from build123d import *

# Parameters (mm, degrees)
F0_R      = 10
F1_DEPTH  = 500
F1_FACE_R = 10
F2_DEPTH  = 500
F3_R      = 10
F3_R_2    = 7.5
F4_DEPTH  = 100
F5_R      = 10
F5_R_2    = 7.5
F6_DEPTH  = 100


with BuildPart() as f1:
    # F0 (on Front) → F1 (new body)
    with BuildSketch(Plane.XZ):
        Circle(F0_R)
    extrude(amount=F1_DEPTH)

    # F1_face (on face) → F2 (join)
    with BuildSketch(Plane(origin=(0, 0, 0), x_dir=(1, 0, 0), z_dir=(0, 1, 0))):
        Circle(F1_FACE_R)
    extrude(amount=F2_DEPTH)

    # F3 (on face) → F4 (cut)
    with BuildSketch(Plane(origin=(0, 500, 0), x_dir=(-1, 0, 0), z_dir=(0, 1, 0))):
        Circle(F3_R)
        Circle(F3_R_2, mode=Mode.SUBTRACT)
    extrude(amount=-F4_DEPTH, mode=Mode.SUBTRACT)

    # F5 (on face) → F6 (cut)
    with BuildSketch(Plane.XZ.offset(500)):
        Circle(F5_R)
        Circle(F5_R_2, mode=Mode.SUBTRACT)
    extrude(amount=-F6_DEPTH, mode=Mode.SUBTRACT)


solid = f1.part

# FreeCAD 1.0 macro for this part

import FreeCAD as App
import Part
import Sketcher
from FreeCAD import Vector
Q = App.Units.Quantity

doc = App.newDocument("Part")
params = doc.addObject("Spreadsheet::Sheet", "Params")
for row, (alias, value) in enumerate([
    ("sketch1_diameter", "20 mm"),
    ("pad1_length", "500 mm"),
    ("sketch2_diameter", "20 mm"),
    ("pad2_length", "500 mm"),
    ("sketch3_diameter", "20 mm"),
    ("sketch3_diameter2", "15 mm"),
    ("pocket1_length", "100 mm"),
    ("sketch4_diameter", "20 mm"),
    ("sketch4_diameter2", "15 mm"),
    ("pocket2_length", "100 mm"),
], start=1):
    params.set(f"A{row}", alias)
    params.set(f"B{row}", "=" + value)
    params.setAlias(f"B{row}", alias)

body = doc.addObject("PartDesign::Body", "Body")

# Sketch on XZ plane
sketch1 = body.newObject("Sketcher::SketchObject", "Sketch")
sketch1.AttachmentSupport = (doc.getObject("XZ_Plane"), [""])
sketch1.MapMode = "FlatFace"
sketch1.addGeometry(Part.Circle(Vector(0, 0, 0), Vector(0, 0, 1), 10), False)
sketch1.addConstraint([
    Sketcher.Constraint("Coincident", 0, 3, -1, 1),
    Sketcher.Constraint("Diameter", 0, Q("20 mm")),
])
sketch1.setExpression("Constraints[1]", "Params.sketch1_diameter")
pad1 = body.newObject("PartDesign::Pad", "Pad")
pad1.Profile = sketch1
pad1.setExpression("Length", "Params.pad1_length")

# Sketch on XZ plane
sketch2 = body.newObject("Sketcher::SketchObject", "Sketch001")
sketch2.AttachmentSupport = (doc.getObject("XZ_Plane"), [""])
sketch2.MapMode = "FlatFace"
sketch2.addGeometry(Part.Circle(Vector(0, 0, 0), Vector(0, 0, 1), 10), False)
sketch2.addConstraint([
    Sketcher.Constraint("Coincident", 0, 3, -1, 1),
    Sketcher.Constraint("Diameter", 0, Q("20 mm")),
])
sketch2.setExpression("Constraints[1]", "Params.sketch2_diameter")
pad2 = body.newObject("PartDesign::Pad", "Pad001")
pad2.Profile = sketch2
pad2.setExpression("Length", "Params.pad2_length")
pad2.Reversed = True

# Sketch on XZ plane
sketch3 = body.newObject("Sketcher::SketchObject", "Sketch002")
sketch3.AttachmentSupport = (doc.getObject("XZ_Plane"), [""])
sketch3.MapMode = "FlatFace"
sketch3.AttachmentOffset = App.Placement(Vector(0, 0, -500), App.Rotation())
sketch3.addGeometry([
    Part.Circle(Vector(0, 0, 0), Vector(0, 0, 1), 10),
    Part.Circle(Vector(0, 0, 0), Vector(0, 0, 1), 7.5),
], False)
sketch3.addConstraint([
    Sketcher.Constraint("Coincident", 0, 3, -1, 1),
    Sketcher.Constraint("Coincident", 1, 3, -1, 1),
    Sketcher.Constraint("Diameter", 0, Q("20 mm")),
    Sketcher.Constraint("Diameter", 1, Q("15 mm")),
])
sketch3.setExpression("Constraints[2]", "Params.sketch3_diameter")
sketch3.setExpression("Constraints[3]", "Params.sketch3_diameter2")
pocket1 = body.newObject("PartDesign::Pocket", "Pocket")
pocket1.Profile = sketch3
pocket1.setExpression("Length", "Params.pocket1_length")
pocket1.Reversed = True

# Sketch on XZ plane
sketch4 = body.newObject("Sketcher::SketchObject", "Sketch003")
sketch4.AttachmentSupport = (doc.getObject("XZ_Plane"), [""])
sketch4.MapMode = "FlatFace"
sketch4.AttachmentOffset = App.Placement(Vector(0, 0, 500), App.Rotation())
sketch4.addGeometry([
    Part.Circle(Vector(0, 0, 0), Vector(0, 0, 1), 10),
    Part.Circle(Vector(0, 0, 0), Vector(0, 0, 1), 7.5),
], False)
sketch4.addConstraint([
    Sketcher.Constraint("Coincident", 0, 3, -1, 1),
    Sketcher.Constraint("Coincident", 1, 3, -1, 1),
    Sketcher.Constraint("Diameter", 0, Q("20 mm")),
    Sketcher.Constraint("Diameter", 1, Q("15 mm")),
])
sketch4.setExpression("Constraints[2]", "Params.sketch4_diameter")
sketch4.setExpression("Constraints[3]", "Params.sketch4_diameter2")
pocket2 = body.newObject("PartDesign::Pocket", "Pocket001")
pocket2.Profile = sketch4
pocket2.setExpression("Length", "Params.pocket2_length")

doc.recompute()
